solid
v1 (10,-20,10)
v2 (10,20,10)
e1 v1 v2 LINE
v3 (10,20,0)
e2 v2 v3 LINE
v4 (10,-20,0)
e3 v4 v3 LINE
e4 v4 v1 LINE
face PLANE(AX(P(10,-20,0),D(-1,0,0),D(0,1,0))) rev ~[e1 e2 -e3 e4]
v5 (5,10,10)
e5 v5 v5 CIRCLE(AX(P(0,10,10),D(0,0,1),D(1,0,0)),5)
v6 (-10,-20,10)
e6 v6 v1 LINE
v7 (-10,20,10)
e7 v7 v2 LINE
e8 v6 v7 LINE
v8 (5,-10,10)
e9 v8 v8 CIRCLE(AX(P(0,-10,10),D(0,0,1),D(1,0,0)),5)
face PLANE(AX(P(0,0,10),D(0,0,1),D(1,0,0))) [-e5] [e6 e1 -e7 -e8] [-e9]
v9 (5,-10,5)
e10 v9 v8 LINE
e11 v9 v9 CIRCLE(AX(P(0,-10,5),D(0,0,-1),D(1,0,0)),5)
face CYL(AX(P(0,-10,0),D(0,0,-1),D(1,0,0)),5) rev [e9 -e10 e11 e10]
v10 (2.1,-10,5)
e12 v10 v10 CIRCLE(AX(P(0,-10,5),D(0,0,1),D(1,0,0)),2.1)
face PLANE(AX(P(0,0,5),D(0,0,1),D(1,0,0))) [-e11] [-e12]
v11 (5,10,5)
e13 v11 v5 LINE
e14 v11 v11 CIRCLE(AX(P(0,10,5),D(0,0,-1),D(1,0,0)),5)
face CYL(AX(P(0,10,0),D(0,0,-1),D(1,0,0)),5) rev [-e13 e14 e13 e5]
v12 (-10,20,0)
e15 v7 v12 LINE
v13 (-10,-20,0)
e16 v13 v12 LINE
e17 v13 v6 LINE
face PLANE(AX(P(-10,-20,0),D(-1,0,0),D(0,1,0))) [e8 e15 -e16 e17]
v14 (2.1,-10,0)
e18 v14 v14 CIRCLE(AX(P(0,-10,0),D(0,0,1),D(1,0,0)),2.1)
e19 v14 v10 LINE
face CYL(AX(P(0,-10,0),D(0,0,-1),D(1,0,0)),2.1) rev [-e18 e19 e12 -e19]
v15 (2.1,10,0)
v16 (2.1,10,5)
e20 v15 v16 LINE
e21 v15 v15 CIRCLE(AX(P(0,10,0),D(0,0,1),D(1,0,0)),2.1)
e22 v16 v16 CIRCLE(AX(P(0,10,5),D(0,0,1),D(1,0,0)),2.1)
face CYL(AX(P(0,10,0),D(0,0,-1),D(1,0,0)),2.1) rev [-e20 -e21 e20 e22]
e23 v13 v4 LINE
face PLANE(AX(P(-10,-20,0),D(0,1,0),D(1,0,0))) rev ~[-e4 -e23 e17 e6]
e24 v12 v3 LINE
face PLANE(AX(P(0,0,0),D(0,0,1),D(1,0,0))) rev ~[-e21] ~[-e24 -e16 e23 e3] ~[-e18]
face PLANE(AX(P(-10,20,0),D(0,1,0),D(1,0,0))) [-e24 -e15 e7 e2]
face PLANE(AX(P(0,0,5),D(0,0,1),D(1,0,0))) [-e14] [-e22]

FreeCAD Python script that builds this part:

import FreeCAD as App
import Part
import Sketcher
from FreeCAD import Vector


def add_polygon(sketch, points):
    """Adds a closed chain of lines whose ends are joined by coincident constraints."""
    first, n = sketch.GeometryCount, len(points)
    for a, b in zip(points, points[1:] + points[:1]):
        sketch.addGeometry(Part.LineSegment(App.Vector(*a, 0), App.Vector(*b, 0)), False)
    for i in range(n):
        sketch.addConstraint(Sketcher.Constraint("Coincident", first + i, 2, first + (i + 1) % n, 1))

doc = App.newDocument("Part")
body = doc.addObject("PartDesign::Body", "Body")

sketch1 = body.newObject("Sketcher::SketchObject", "Sketch")
sketch1.AttachmentSupport = (doc.getObject("XY_Plane"), [""])
sketch1.MapMode = "FlatFace"
add_polygon(sketch1, [(-10, 20), (-10, -20), (10, -20), (10, 20)])
sketch1.addGeometry(Part.Circle(Vector(0, -10, 0), Vector(0, 0, 1), 2.1), False)
sketch1.addGeometry(Part.Circle(Vector(0, 10, 0), Vector(0, 0, 1), 2.1), False)
sketch1.addConstraint(Sketcher.Constraint("Vertical", 0))
sketch1.addConstraint(Sketcher.Constraint("Horizontal", 1))
sketch1.addConstraint(Sketcher.Constraint("Vertical", 2))
sketch1.addConstraint(Sketcher.Constraint("Horizontal", 3))
sketch1.addConstraint(Sketcher.Constraint("Equal", 4, 5))
sketch1.addConstraint(Sketcher.Constraint("Symmetric", 4, 3, 5, 3, -1, 1))
sketch1.addConstraint(Sketcher.Constraint("Symmetric", 0, 2, 2, 2, -1, 1))
sketch1.addConstraint(Sketcher.Constraint("PointOnObject", 4, 3, -2))
sketch1.addConstraint(Sketcher.Constraint("Diameter", 4, 4.2))
sketch1.addConstraint(Sketcher.Constraint("DistanceX", 1, 1, 1, 2, 20.0))
sketch1.addConstraint(Sketcher.Constraint("DistanceY", 0, 2, 0, 1, 40.0))
sketch1.addConstraint(Sketcher.Constraint("DistanceY", 4, 3, -1, 1, 10.0))
pad1 = body.newObject("PartDesign::Pad", "Pad")
pad1.Profile = sketch1
pad1.Length = 5

sketch2 = body.newObject("Sketcher::SketchObject", "Sketch001")
sketch2.AttachmentSupport = (doc.getObject("XY_Plane"), [""])
sketch2.MapMode = "FlatFace"
add_polygon(sketch2, [(-10, 20), (-10, -20), (10, -20), (10, 20)])
sketch2.addGeometry(Part.Circle(Vector(0, -10, 0), Vector(0, 0, 1), 5), False)
sketch2.addGeometry(Part.Circle(Vector(0, 10, 0), Vector(0, 0, 1), 5), False)
sketch2.addConstraint(Sketcher.Constraint("Vertical", 0))
sketch2.addConstraint(Sketcher.Constraint("Horizontal", 1))
sketch2.addConstraint(Sketcher.Constraint("Vertical", 2))
sketch2.addConstraint(Sketcher.Constraint("Horizontal", 3))
sketch2.addConstraint(Sketcher.Constraint("Equal", 4, 5))
sketch2.addConstraint(Sketcher.Constraint("Symmetric", 4, 3, 5, 3, -1, 1))
sketch2.addConstraint(Sketcher.Constraint("Symmetric", 0, 2, 2, 2, -1, 1))
sketch2.addConstraint(Sketcher.Constraint("PointOnObject", 4, 3, -2))
sketch2.addConstraint(Sketcher.Constraint("Diameter", 4, 10.0))
sketch2.addConstraint(Sketcher.Constraint("DistanceX", 1, 1, 1, 2, 20.0))
sketch2.addConstraint(Sketcher.Constraint("DistanceY", 0, 2, 0, 1, 40.0))
sketch2.addConstraint(Sketcher.Constraint("DistanceY", 4, 3, -1, 1, 10.0))
pad2 = body.newObject("PartDesign::Pad", "Pad001")
pad2.Profile = sketch2
pad2.Length = 10

doc.recompute()
